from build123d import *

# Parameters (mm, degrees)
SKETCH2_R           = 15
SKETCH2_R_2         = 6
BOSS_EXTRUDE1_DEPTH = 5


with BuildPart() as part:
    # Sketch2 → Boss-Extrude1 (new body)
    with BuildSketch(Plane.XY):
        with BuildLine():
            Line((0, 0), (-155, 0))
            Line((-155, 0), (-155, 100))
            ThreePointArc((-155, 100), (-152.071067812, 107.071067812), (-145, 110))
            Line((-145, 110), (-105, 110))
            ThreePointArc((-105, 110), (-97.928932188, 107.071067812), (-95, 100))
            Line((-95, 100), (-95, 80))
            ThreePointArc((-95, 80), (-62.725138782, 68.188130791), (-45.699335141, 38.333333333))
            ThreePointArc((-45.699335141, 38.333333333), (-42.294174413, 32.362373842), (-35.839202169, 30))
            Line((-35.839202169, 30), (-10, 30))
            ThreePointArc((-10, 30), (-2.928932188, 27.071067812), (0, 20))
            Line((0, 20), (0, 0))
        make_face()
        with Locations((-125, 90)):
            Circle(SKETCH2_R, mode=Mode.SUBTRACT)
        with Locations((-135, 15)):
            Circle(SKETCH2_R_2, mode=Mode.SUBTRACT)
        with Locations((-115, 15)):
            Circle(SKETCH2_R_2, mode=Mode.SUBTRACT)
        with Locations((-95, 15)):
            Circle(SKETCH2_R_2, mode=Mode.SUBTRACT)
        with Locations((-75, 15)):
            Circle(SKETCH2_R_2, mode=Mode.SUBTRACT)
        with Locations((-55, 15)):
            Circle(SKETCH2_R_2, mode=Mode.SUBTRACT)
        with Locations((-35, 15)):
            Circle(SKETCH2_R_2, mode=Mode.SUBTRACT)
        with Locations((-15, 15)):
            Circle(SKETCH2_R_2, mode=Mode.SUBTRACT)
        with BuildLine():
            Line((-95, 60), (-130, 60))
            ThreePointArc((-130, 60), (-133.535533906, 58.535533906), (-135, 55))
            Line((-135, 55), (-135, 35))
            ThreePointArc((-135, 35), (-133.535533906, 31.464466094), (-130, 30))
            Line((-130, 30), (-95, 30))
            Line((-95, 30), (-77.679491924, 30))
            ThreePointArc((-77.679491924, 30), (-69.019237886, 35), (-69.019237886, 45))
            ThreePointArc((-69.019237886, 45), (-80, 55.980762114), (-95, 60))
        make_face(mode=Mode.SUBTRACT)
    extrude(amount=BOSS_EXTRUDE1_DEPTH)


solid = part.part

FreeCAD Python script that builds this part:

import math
import FreeCAD as App
import Part
import Sketcher

V = App.Vector
Q = App.Units.Quantity

doc = App.newDocument("Part")
body = doc.addObject("PartDesign::Body", "Body")

# Sketch on XY plane
sketch1 = body.newObject("Sketcher::SketchObject", "Sketch")
sketch1.AttachmentSupport = (doc.getObject("XY_Plane"), [""])
sketch1.MapMode = "FlatFace"
sketch1.addGeometry([
    Part.LineSegment(V(-155, 0, 0), V(0, 0, 0)),  # 0
    Part.LineSegment(V(0, 0, 0), V(0, 20, 0)),  # 1
    Part.ArcOfCircle(Part.Circle(V(-10, 20, 0), V(0, 0, 1), 10), math.radians(0), math.radians(90)),  # 2
    Part.LineSegment(V(-10, 30, 0), V(-35.839202, 30, 0)),  # 3
    Part.ArcOfCircle(Part.Circle(V(-35.839202, 40, 0), V(0, 0, 1), 10), math.radians(-170.405932), math.radians(-90)),  # 4
    Part.ArcOfCircle(Part.Circle(V(-95, 30, 0), V(0, 0, 1), 50), math.radians(9.594068), math.radians(90)),  # 5
    Part.LineSegment(V(-95, 80, 0), V(-95, 100, 0)),  # 6
    Part.ArcOfCircle(Part.Circle(V(-105, 100, 0), V(0, 0, 1), 10), math.radians(0), math.radians(90)),  # 7
    Part.LineSegment(V(-105, 110, 0), V(-145, 110, 0)),  # 8
    Part.ArcOfCircle(Part.Circle(V(-145, 100, 0), V(0, 0, 1), 10), math.radians(90), math.radians(180)),  # 9
    Part.LineSegment(V(-155, 100, 0), V(-155, 0, 0)),  # 10
    Part.Circle(V(-15, 15, 0), V(0, 0, 1), 6),  # 11
    Part.Circle(V(-35, 15, 0), V(0, 0, 1), 6),  # 12
    Part.Circle(V(-55, 15, 0), V(0, 0, 1), 6),  # 13
    Part.Circle(V(-75, 15, 0), V(0, 0, 1), 6),  # 14
    Part.Circle(V(-95, 15, 0), V(0, 0, 1), 6),  # 15
    Part.Circle(V(-115, 15, 0), V(0, 0, 1), 6),  # 16
    Part.Circle(V(-135, 15, 0), V(0, 0, 1), 6),  # 17
    Part.ArcOfCircle(Part.Circle(V(-95, 30, 0), V(0, 0, 1), 30), math.radians(30), math.radians(90)),  # 18
    Part.ArcOfCircle(Part.Circle(V(-77.679492, 40, 0), V(0, 0, 1), 10), math.radians(-90), math.radians(30)),  # 19
    Part.LineSegment(V(-77.679492, 30, 0), V(-130, 30, 0)),  # 20
    Part.ArcOfCircle(Part.Circle(V(-130, 35, 0), V(0, 0, 1), 5), math.radians(180), math.radians(270)),  # 21
    Part.LineSegment(V(-135, 35, 0), V(-135, 55, 0)),  # 22
    Part.ArcOfCircle(Part.Circle(V(-130, 55, 0), V(0, 0, 1), 5), math.radians(90), math.radians(180)),  # 23
    Part.LineSegment(V(-130, 60, 0), V(-95, 60, 0)),  # 24
    Part.Circle(V(-125, 90, 0), V(0, 0, 1), 15),  # 25
], False)
sketch1.addConstraint([
    Sketcher.Constraint("Coincident", 0, 2, 1, 1),
    Sketcher.Constraint("Tangent", 1, 2, 2, 1),
    Sketcher.Constraint("Tangent", 2, 2, 3, 1),
    Sketcher.Constraint("Tangent", 3, 2, 4, 2),
    Sketcher.Constraint("Tangent", 4, 1, 5, 1),
    Sketcher.Constraint("Coincident", 5, 2, 6, 1),
    Sketcher.Constraint("Tangent", 6, 2, 7, 1),
    Sketcher.Constraint("Tangent", 7, 2, 8, 1),
    Sketcher.Constraint("Tangent", 8, 2, 9, 1),
    Sketcher.Constraint("Tangent", 9, 2, 10, 1),
    Sketcher.Constraint("Coincident", 10, 2, 0, 1),
    Sketcher.Constraint("Tangent", 18, 1, 19, 2),
    Sketcher.Constraint("Tangent", 19, 1, 20, 1),
    Sketcher.Constraint("Tangent", 20, 2, 21, 2),
    Sketcher.Constraint("Tangent", 21, 1, 22, 1),
    Sketcher.Constraint("Tangent", 22, 2, 23, 2),
    Sketcher.Constraint("Tangent", 23, 1, 24, 1),
    Sketcher.Constraint("Tangent", 24, 2, 18, 2),
    Sketcher.Constraint("Horizontal", 0),
    Sketcher.Constraint("Vertical", 1),
    Sketcher.Constraint("Horizontal", 3),
    Sketcher.Constraint("Vertical", 6),
    Sketcher.Constraint("Horizontal", 8),
    Sketcher.Constraint("Vertical", 10),
    Sketcher.Constraint("Horizontal", 20),
    Sketcher.Constraint("Vertical", 22),
    Sketcher.Constraint("Horizontal", 24),
    Sketcher.Constraint("Coincident", 0, 2, -1, 1),
    Sketcher.Constraint("Coincident", 18, 3, 5, 3),
    Sketcher.Constraint("Equal", 2, 4),
    Sketcher.Constraint("Equal", 4, 7),
    Sketcher.Constraint("Equal", 7, 9),
    Sketcher.Constraint("Equal", 11, 12),
    Sketcher.Constraint("Equal", 12, 13),
    Sketcher.Constraint("Equal", 13, 14),
    Sketcher.Constraint("Equal", 14, 15),
    Sketcher.Constraint("Equal", 15, 16),
    Sketcher.Constraint("Equal", 16, 17),
    Sketcher.Constraint("Equal", 9, 19),
    Sketcher.Constraint("Equal", 21, 23),
    Sketcher.Constraint("Horizontal", 11, 3, 12, 3),
    Sketcher.Constraint("Horizontal", 12, 3, 13, 3),
    Sketcher.Constraint("Horizontal", 13, 3, 14, 3),
    Sketcher.Constraint("Horizontal", 14, 3, 15, 3),
    Sketcher.Constraint("Horizontal", 15, 3, 16, 3),
    Sketcher.Constraint("Horizontal", 16, 3, 17, 3),
    Sketcher.Constraint("Horizontal", 4, 3, 19, 3),
    Sketcher.Constraint("Horizontal", 18, 3, 2, 2),
    Sketcher.Constraint("Vertical", 5, 3, 15, 3),
    Sketcher.Constraint("Vertical", 18, 3, 5, 2),
    Sketcher.Constraint("Vertical", 17, 3, 21, 1),
    Sketcher.Constraint("Equal", 1, 6),
    Sketcher.Constraint("Equal", 6, 22),
    Sketcher.Constraint("Diameter", 11, Q("12 mm")),
    Sketcher.Constraint("Diameter", 25, Q("30 mm")),
    Sketcher.Constraint("Radius", 2, Q("10 mm")),
    Sketcher.Constraint("Radius", 5, Q("50 mm")),
    Sketcher.Constraint("Radius", 18, Q("30 mm")),
    Sketcher.Constraint("Radius", 21, Q("5 mm")),
    Sketcher.Constraint("DistanceX", 0, 1, 0, 2, Q("155 mm")),
    Sketcher.Constraint("DistanceX", 8, 2, 8, 1, Q("40 mm")),
    Sketcher.Constraint("DistanceX", 24, 1, 24, 2, Q("35 mm")),
    Sketcher.Constraint("DistanceX", 11, 3, -1, 1, Q("15 mm")),
    Sketcher.Constraint("DistanceY", -1, 1, 11, 3, Q("15 mm")),
    Sketcher.Constraint("DistanceX", 12, 3, -1, 1, Q("35 mm")),
    Sketcher.Constraint("DistanceX", 13, 3, -1, 1, Q("55 mm")),
    Sketcher.Constraint("DistanceX", 14, 3, -1, 1, Q("75 mm")),
    Sketcher.Constraint("DistanceX", 16, 3, -1, 1, Q("115 mm")),
    Sketcher.Constraint("DistanceX", 25, 3, -1, 1, Q("125 mm")),
    Sketcher.Constraint("DistanceY", -1, 1, 25, 3, Q("90 mm")),
])
pad1 = body.newObject("PartDesign::Pad", "Pad")
pad1.Profile = sketch1
pad1.Length = 5

doc.recompute()
